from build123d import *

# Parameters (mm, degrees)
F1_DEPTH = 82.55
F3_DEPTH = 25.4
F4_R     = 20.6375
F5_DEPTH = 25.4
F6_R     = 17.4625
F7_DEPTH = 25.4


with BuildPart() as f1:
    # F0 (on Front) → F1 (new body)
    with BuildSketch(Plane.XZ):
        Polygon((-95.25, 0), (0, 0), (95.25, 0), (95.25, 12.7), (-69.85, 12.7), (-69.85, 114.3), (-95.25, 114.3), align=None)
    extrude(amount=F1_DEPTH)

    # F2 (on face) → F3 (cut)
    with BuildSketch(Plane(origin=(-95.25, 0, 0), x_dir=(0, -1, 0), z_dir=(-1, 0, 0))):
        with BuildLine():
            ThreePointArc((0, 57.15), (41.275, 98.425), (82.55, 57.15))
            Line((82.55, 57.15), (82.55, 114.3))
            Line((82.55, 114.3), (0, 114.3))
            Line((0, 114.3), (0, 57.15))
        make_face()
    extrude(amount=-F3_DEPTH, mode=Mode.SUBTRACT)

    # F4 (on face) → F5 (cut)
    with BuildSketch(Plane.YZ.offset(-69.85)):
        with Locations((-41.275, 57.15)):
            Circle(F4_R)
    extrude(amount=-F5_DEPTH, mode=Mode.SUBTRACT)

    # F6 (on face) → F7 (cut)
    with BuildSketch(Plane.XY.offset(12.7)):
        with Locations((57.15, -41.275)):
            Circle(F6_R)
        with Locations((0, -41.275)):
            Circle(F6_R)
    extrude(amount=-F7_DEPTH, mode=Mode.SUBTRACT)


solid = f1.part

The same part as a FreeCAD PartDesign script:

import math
import FreeCAD as App
import Part
import Sketcher

V = App.Vector
Q = App.Units.Quantity


def add_polygon(sketch, points):
    """Adds a closed chain of lines whose ends are joined by coincident constraints."""
    first, n = sketch.GeometryCount, len(points)
    for a, b in zip(points, points[1:] + points[:1]):
        sketch.addGeometry(Part.LineSegment(App.Vector(*a, 0), App.Vector(*b, 0)), False)
    for i in range(n):
        sketch.addConstraint(Sketcher.Constraint("Coincident", first + i, 2, first + (i + 1) % n, 1))

doc = App.newDocument("Part")
body = doc.addObject("PartDesign::Body", "Body")

sketch1 = doc.addObject("Sketcher::SketchObject", "Sketch")
body.addObject(sketch1)
sketch1.AttachmentSupport = (doc.XZ_Plane, [""])
sketch1.MapMode = "FlatFace"
add_polygon(sketch1, [(-95, 0), (95, 0), (95, 13), (-70, 13), (-70, 114), (-95, 114)])
sketch1.addConstraint([
    Sketcher.Constraint("Horizontal", 0),
    Sketcher.Constraint("Vertical", 1),
    Sketcher.Constraint("Horizontal", 2),
    Sketcher.Constraint("Vertical", 3),
    Sketcher.Constraint("Horizontal", 4),
    Sketcher.Constraint("Vertical", 5),
    Sketcher.Constraint("Symmetric", 0, 2, 5, 2, -1, 1),
    Sketcher.Constraint("DistanceX", 4, 2, 4, 1, Q("1 in")),
    Sketcher.Constraint("DistanceY", 3, 1, 3, 2, Q("4 in")),
    Sketcher.Constraint("DistanceX", 0, 1, 0, 2, Q("7.5 in")),
    Sketcher.Constraint("DistanceY", 1, 1, 1, 2, Q("0.5 in")),
])
pad1 = doc.addObject("PartDesign::Pad", "Pad")
body.addObject(pad1)
pad1.Profile = sketch1
pad1.Length = Q("3.25 in")

sketch2 = doc.addObject("Sketcher::SketchObject", "Sketch001")
body.addObject(sketch2)
sketch2.AttachmentSupport = (doc.YZ_Plane, [""])
sketch2.MapMode = "FlatFace"
sketch2.AttachmentOffset = App.Placement(V(0, 0, -3.75 * 25.4), App.Rotation())
sketch2.addGeometry([
    Part.ArcOfCircle(Part.Circle(V(-41, 57, 0), V(0, 0, 1), 41), math.radians(0), math.radians(180)),
    Part.LineSegment(V(-83, 57, 0), V(-83, 114, 0)),
    Part.LineSegment(V(-83, 114, 0), V(0, 114, 0)),
    Part.LineSegment(V(0, 114, 0), V(0, 57, 0)),
], False)
sketch2.addConstraint([
    Sketcher.Constraint("Tangent", 0, 2, 1, 1),
    Sketcher.Constraint("Coincident", 1, 2, 2, 1),
    Sketcher.Constraint("Coincident", 2, 2, 3, 1),
    Sketcher.Constraint("Tangent", 3, 2, 0, 1),
    Sketcher.Constraint("Vertical", 1),
    Sketcher.Constraint("Horizontal", 2),
    Sketcher.Constraint("Vertical", 3),
    Sketcher.Constraint("PointOnObject", 2, 2, -2),
    Sketcher.Constraint("Radius", 0, Q("1.625 in")),
    Sketcher.Constraint("DistanceY", 1, 1, 1, 2, Q("2.25 in")),
    Sketcher.Constraint("DistanceY", -1, 1, 1, 2, Q("4.5 in")),
])
pocket1 = doc.addObject("PartDesign::Pocket", "Pocket")
body.addObject(pocket1)
pocket1.Profile = sketch2
pocket1.Length = Q("1 in")
pocket1.Reversed = True

sketch3 = doc.addObject("Sketcher::SketchObject", "Sketch002")
body.addObject(sketch3)
sketch3.AttachmentSupport = (doc.YZ_Plane, [""])
sketch3.MapMode = "FlatFace"
sketch3.AttachmentOffset = App.Placement(V(0, 0, -2.75 * 25.4), App.Rotation())
sketch3.addGeometry(Part.Circle(V(-41, 57, 0), V(0, 0, 1), 21), False)
sketch3.addConstraint([
    Sketcher.Constraint("Diameter", 0, Q("1.625 in")),
    Sketcher.Constraint("DistanceY", -1, 1, 0, 3, Q("2.25 in")),
    Sketcher.Constraint("DistanceX", 0, 3, -1, 1, Q("1.625 in")),
])
pocket2 = doc.addObject("PartDesign::Pocket", "Pocket001")
body.addObject(pocket2)
pocket2.Profile = sketch3
pocket2.Length = Q("1 in")

sketch4 = doc.addObject("Sketcher::SketchObject", "Sketch003")
body.addObject(sketch4)
sketch4.AttachmentSupport = (doc.XY_Plane, [""])
sketch4.MapMode = "FlatFace"
sketch4.AttachmentOffset = App.Placement(V(0, 0, 0.5 * 25.4), App.Rotation())
sketch4.addGeometry([
    Part.Circle(V(57, -41, 0), V(0, 0, 1), 17),
    Part.Circle(V(0, -41, 0), V(0, 0, 1), 17),
], False)
sketch4.addConstraint([
    Sketcher.Constraint("Equal", 0, 1),
    Sketcher.Constraint("PointOnObject", 1, 3, -2),
    Sketcher.Constraint("Horizontal", 0, 3, 1, 3),
    Sketcher.Constraint("Diameter", 0, Q("1.375 in")),
    Sketcher.Constraint("DistanceX", -1, 1, 0, 3, Q("2.25 in")),
    Sketcher.Constraint("DistanceY", 0, 3, -1, 1, Q("1.625 in")),
])
pocket3 = doc.addObject("PartDesign::Pocket", "Pocket002")
body.addObject(pocket3)
pocket3.Profile = sketch4
pocket3.Length = Q("1 in")

doc.recompute()
